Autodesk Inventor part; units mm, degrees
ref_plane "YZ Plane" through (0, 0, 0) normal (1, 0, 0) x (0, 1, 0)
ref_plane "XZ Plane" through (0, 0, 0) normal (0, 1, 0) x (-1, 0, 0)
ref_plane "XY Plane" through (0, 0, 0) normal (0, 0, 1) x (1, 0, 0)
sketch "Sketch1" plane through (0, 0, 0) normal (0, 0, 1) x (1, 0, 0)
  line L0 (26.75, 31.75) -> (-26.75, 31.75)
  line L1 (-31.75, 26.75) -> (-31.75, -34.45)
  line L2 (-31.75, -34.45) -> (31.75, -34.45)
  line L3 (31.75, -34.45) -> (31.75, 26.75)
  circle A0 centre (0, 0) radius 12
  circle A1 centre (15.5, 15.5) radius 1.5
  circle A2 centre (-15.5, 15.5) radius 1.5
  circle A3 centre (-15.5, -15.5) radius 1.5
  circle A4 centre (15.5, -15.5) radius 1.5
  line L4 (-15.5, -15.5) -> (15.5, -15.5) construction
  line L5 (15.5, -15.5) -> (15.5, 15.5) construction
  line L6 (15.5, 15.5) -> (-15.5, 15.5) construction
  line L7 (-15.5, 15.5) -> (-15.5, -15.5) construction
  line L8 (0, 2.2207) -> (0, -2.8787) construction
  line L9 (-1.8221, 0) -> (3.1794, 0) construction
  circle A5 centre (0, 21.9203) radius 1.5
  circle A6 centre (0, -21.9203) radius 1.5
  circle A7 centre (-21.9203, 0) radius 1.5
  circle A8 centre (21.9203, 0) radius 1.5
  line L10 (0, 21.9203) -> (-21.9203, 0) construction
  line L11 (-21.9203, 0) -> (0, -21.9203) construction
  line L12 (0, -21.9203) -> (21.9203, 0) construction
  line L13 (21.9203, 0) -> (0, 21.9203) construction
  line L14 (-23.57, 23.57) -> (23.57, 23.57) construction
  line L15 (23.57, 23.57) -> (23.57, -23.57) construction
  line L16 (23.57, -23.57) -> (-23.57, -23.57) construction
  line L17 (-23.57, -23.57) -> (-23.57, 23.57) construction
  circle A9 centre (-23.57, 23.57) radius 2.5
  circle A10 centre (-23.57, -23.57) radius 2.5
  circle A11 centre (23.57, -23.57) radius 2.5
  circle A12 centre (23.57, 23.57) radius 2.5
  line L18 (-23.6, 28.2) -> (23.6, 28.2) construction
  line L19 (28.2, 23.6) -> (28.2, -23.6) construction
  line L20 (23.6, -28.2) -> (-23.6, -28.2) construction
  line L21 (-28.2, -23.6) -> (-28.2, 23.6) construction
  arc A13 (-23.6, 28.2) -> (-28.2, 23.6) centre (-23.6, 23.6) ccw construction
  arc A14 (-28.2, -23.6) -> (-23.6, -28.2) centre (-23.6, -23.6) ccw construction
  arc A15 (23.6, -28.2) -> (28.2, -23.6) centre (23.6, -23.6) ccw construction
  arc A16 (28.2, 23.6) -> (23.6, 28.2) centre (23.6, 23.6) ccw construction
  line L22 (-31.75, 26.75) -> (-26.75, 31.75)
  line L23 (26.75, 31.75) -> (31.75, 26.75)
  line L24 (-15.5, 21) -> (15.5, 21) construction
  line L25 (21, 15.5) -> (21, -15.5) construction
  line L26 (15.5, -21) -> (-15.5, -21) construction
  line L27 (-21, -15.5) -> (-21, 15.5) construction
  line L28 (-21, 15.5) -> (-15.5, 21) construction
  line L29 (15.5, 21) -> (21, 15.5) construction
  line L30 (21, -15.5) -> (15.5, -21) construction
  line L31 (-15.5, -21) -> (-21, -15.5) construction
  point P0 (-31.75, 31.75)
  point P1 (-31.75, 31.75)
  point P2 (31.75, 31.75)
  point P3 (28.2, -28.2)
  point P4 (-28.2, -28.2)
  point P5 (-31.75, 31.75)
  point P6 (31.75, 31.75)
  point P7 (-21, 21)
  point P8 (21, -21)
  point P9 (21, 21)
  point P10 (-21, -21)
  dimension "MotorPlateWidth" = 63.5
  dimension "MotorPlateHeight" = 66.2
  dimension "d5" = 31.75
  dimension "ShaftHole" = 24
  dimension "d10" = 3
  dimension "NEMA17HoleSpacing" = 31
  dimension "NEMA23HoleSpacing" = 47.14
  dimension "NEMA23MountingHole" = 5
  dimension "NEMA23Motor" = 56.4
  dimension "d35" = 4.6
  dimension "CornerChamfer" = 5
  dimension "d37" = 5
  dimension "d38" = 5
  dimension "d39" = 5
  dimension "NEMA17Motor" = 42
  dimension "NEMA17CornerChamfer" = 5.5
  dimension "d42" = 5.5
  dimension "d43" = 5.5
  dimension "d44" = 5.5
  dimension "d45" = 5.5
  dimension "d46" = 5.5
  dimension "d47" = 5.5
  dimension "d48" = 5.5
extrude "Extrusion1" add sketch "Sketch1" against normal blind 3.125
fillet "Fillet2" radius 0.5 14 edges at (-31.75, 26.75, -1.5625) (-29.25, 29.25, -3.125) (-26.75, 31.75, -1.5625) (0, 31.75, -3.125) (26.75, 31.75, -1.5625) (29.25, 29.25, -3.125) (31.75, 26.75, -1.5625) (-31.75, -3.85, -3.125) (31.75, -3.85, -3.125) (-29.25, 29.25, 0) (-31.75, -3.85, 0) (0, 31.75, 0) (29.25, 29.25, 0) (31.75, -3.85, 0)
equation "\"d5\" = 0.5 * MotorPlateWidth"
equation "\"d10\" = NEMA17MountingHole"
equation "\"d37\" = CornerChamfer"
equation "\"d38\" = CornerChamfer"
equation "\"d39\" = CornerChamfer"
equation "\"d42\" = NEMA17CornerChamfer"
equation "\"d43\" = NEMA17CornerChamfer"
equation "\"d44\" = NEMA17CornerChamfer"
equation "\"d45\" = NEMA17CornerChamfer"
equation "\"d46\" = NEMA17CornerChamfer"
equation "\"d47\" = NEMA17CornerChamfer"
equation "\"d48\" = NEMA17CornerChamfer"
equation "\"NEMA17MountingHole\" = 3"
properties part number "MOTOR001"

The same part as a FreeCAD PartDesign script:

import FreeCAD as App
import Part
import Sketcher
Q = App.Units.Quantity


def edges_at(feature, points):
    """Names of the edges that pass closest to the given points."""
    edges = feature.Shape.Edges
    near = lambda p: min(range(len(edges)), key=lambda i: edges[i].distToShape(Part.Vertex(*p))[0])
    return sorted({f"Edge{near(p) + 1}" for p in points})

doc = App.newDocument("Part")
body = doc.addObject("PartDesign::Body", "Body")

# Sketch on XY plane
sketch1 = body.newObject("Sketcher::SketchObject", "Sketch")
sketch1.AttachmentSupport = (doc.getObject("XY_Plane"), [""])
sketch1.MapMode = "FlatFace"
sketch1.addGeometry([
    Part.LineSegment(App.Vector(31.8, 26.8, 0), App.Vector(26.8, 31.8, 0)),  # 0
    Part.LineSegment(App.Vector(26.8, 31.8, 0), App.Vector(-26.8, 31.8, 0)),  # 1
    Part.LineSegment(App.Vector(-26.8, 31.8, 0), App.Vector(-31.8, 26.8, 0)),  # 2
    Part.LineSegment(App.Vector(-31.8, 26.8, 0), App.Vector(-31.8, -34.5, 0)),  # 3
    Part.LineSegment(App.Vector(-31.8, -34.5, 0), App.Vector(31.8, -34.5, 0)),  # 4
    Part.LineSegment(App.Vector(31.8, -34.5, 0), App.Vector(31.8, 26.8, 0)),  # 5
    Part.Circle(App.Vector(-23.6, -23.6, 0), App.Vector(0, 0, 1), 2.5),  # 6
    Part.Circle(App.Vector(-15.5, -15.5, 0), App.Vector(0, 0, 1), 1.5),  # 7
    Part.Circle(App.Vector(0, -21.9, 0), App.Vector(0, 0, 1), 1.5),  # 8
    Part.Circle(App.Vector(23.6, -23.6, 0), App.Vector(0, 0, 1), 2.5),  # 9
    Part.Circle(App.Vector(15.5, -15.5, 0), App.Vector(0, 0, 1), 1.5),  # 10
    Part.Circle(App.Vector(-21.9, 0, 0), App.Vector(0, 0, 1), 1.5),  # 11
    Part.Circle(App.Vector(-23.6, 23.6, 0), App.Vector(0, 0, 1), 2.5),  # 12
    Part.Circle(App.Vector(-15.5, 15.5, 0), App.Vector(0, 0, 1), 1.5),  # 13
    Part.Circle(App.Vector(0, 0, 0), App.Vector(0, 0, 1), 12),  # 14
    Part.Circle(App.Vector(21.9, 0, 0), App.Vector(0, 0, 1), 1.5),  # 15
    Part.Circle(App.Vector(0, 21.9, 0), App.Vector(0, 0, 1), 1.5),  # 16
    Part.Circle(App.Vector(15.5, 15.5, 0), App.Vector(0, 0, 1), 1.5),  # 17
    Part.Circle(App.Vector(23.6, 23.6, 0), App.Vector(0, 0, 1), 2.5),  # 18
], False)
sketch1.addConstraint([
    Sketcher.Constraint("Coincident", 0, 2, 1, 1),
    Sketcher.Constraint("Coincident", 1, 2, 2, 1),
    Sketcher.Constraint("Coincident", 2, 2, 3, 1),
    Sketcher.Constraint("Coincident", 3, 2, 4, 1),
    Sketcher.Constraint("Coincident", 4, 2, 5, 1),
    Sketcher.Constraint("Coincident", 5, 2, 0, 1),
    Sketcher.Constraint("Horizontal", 1),
    Sketcher.Constraint("Vertical", 3),
    Sketcher.Constraint("Horizontal", 4),
    Sketcher.Constraint("Vertical", 5),
    Sketcher.Constraint("Coincident", 14, 3, -1, 1),
    Sketcher.Constraint("Equal", 7, 8),
    Sketcher.Constraint("Equal", 6, 9),
    Sketcher.Constraint("Equal", 8, 10),
    Sketcher.Constraint("Equal", 10, 11),
    Sketcher.Constraint("Equal", 9, 12),
    Sketcher.Constraint("Equal", 11, 13),
    Sketcher.Constraint("Equal", 13, 15),
    Sketcher.Constraint("Equal", 15, 16),
    Sketcher.Constraint("Equal", 16, 17),
    Sketcher.Constraint("Equal", 12, 18),
    Sketcher.Constraint("Symmetric", 9, 3, 12, 3, -1, 1),
    Sketcher.Constraint("Symmetric", 10, 3, 13, 3, -1, 1),
    Sketcher.Constraint("Symmetric", 11, 3, 15, 3, -1, 1),
    Sketcher.Constraint("Symmetric", 8, 3, 16, 3, -1, 1),
    Sketcher.Constraint("Symmetric", 7, 3, 17, 3, -1, 1),
    Sketcher.Constraint("Symmetric", 6, 3, 18, 3, -1, 1),
    Sketcher.Constraint("Symmetric", 6, 3, 9, 3, -2),
    Sketcher.Constraint("Symmetric", 7, 3, 10, 3, -2),
    Sketcher.Constraint("Symmetric", 2, 2, 5, 2, -2),
    Sketcher.Constraint("PointOnObject", 8, 3, -2),
    Sketcher.Constraint("PointOnObject", 11, 3, -1),
    Sketcher.Constraint("Perpendicular", 0, 2),
    Sketcher.Constraint("Equal", 0, 2),
    Sketcher.Constraint("Diameter", 6, Q("5 mm")),
    Sketcher.Constraint("Diameter", 7, Q("3 mm")),
    Sketcher.Constraint("Diameter", 14, Q("24 mm")),
    Sketcher.Constraint("DistanceX", 4, 1, 4, 2, Q("63.5 mm")),
    Sketcher.Constraint("DistanceX", 7, 3, 10, 3, Q("31 mm")),
    Sketcher.Constraint("DistanceY", 7, 3, 13, 3, Q("31 mm")),
    Sketcher.Constraint("DistanceX", 2, 2, 1, 2, Q("5 mm")),
    Sketcher.Constraint("DistanceY", -1, 1, 0, 2, Q("31.75 mm")),
    Sketcher.Constraint("DistanceX", 6, 3, 9, 3, Q("47.14 mm")),
    Sketcher.Constraint("DistanceY", 6, 3, 12, 3, Q("47.14 mm")),
    Sketcher.Constraint("DistanceY", 3, 2, 3, 1, Q("61.2 mm")),
    Sketcher.Constraint("DistanceY", 8, 3, -1, 1, Q("21.9203 mm")),
    Sketcher.Constraint("DistanceX", 11, 3, -1, 1, Q("21.9203 mm")),
])
pad1 = body.newObject("PartDesign::Pad", "Pad")
pad1.Profile = sketch1
pad1.Length = 3.125
pad1.Reversed = True
doc.recompute()

fillet = body.newObject("PartDesign::Fillet", "Fillet")
fillet.Base = (pad1, edges_at(pad1, [
    (-31.75, 26.75, -1.562),
    (-29.25, 29.25, -3.125),
    (-26.75, 31.75, -1.562),
    (0, 31.75, -3.125),
    (26.75, 31.75, -1.562),
    (29.25, 29.25, -3.125),
    (31.75, 26.75, -1.562),
    (-31.75, -3.85, -3.125),
    (31.75, -3.85, -3.125),
    (-29.25, 29.25, 0),
    (-31.75, -3.85, 0),
    (0, 31.75, 0),
    (29.25, 29.25, 0),
    (31.75, -3.85, 0),
]))
fillet.Radius = 0.5

doc.recompute()
